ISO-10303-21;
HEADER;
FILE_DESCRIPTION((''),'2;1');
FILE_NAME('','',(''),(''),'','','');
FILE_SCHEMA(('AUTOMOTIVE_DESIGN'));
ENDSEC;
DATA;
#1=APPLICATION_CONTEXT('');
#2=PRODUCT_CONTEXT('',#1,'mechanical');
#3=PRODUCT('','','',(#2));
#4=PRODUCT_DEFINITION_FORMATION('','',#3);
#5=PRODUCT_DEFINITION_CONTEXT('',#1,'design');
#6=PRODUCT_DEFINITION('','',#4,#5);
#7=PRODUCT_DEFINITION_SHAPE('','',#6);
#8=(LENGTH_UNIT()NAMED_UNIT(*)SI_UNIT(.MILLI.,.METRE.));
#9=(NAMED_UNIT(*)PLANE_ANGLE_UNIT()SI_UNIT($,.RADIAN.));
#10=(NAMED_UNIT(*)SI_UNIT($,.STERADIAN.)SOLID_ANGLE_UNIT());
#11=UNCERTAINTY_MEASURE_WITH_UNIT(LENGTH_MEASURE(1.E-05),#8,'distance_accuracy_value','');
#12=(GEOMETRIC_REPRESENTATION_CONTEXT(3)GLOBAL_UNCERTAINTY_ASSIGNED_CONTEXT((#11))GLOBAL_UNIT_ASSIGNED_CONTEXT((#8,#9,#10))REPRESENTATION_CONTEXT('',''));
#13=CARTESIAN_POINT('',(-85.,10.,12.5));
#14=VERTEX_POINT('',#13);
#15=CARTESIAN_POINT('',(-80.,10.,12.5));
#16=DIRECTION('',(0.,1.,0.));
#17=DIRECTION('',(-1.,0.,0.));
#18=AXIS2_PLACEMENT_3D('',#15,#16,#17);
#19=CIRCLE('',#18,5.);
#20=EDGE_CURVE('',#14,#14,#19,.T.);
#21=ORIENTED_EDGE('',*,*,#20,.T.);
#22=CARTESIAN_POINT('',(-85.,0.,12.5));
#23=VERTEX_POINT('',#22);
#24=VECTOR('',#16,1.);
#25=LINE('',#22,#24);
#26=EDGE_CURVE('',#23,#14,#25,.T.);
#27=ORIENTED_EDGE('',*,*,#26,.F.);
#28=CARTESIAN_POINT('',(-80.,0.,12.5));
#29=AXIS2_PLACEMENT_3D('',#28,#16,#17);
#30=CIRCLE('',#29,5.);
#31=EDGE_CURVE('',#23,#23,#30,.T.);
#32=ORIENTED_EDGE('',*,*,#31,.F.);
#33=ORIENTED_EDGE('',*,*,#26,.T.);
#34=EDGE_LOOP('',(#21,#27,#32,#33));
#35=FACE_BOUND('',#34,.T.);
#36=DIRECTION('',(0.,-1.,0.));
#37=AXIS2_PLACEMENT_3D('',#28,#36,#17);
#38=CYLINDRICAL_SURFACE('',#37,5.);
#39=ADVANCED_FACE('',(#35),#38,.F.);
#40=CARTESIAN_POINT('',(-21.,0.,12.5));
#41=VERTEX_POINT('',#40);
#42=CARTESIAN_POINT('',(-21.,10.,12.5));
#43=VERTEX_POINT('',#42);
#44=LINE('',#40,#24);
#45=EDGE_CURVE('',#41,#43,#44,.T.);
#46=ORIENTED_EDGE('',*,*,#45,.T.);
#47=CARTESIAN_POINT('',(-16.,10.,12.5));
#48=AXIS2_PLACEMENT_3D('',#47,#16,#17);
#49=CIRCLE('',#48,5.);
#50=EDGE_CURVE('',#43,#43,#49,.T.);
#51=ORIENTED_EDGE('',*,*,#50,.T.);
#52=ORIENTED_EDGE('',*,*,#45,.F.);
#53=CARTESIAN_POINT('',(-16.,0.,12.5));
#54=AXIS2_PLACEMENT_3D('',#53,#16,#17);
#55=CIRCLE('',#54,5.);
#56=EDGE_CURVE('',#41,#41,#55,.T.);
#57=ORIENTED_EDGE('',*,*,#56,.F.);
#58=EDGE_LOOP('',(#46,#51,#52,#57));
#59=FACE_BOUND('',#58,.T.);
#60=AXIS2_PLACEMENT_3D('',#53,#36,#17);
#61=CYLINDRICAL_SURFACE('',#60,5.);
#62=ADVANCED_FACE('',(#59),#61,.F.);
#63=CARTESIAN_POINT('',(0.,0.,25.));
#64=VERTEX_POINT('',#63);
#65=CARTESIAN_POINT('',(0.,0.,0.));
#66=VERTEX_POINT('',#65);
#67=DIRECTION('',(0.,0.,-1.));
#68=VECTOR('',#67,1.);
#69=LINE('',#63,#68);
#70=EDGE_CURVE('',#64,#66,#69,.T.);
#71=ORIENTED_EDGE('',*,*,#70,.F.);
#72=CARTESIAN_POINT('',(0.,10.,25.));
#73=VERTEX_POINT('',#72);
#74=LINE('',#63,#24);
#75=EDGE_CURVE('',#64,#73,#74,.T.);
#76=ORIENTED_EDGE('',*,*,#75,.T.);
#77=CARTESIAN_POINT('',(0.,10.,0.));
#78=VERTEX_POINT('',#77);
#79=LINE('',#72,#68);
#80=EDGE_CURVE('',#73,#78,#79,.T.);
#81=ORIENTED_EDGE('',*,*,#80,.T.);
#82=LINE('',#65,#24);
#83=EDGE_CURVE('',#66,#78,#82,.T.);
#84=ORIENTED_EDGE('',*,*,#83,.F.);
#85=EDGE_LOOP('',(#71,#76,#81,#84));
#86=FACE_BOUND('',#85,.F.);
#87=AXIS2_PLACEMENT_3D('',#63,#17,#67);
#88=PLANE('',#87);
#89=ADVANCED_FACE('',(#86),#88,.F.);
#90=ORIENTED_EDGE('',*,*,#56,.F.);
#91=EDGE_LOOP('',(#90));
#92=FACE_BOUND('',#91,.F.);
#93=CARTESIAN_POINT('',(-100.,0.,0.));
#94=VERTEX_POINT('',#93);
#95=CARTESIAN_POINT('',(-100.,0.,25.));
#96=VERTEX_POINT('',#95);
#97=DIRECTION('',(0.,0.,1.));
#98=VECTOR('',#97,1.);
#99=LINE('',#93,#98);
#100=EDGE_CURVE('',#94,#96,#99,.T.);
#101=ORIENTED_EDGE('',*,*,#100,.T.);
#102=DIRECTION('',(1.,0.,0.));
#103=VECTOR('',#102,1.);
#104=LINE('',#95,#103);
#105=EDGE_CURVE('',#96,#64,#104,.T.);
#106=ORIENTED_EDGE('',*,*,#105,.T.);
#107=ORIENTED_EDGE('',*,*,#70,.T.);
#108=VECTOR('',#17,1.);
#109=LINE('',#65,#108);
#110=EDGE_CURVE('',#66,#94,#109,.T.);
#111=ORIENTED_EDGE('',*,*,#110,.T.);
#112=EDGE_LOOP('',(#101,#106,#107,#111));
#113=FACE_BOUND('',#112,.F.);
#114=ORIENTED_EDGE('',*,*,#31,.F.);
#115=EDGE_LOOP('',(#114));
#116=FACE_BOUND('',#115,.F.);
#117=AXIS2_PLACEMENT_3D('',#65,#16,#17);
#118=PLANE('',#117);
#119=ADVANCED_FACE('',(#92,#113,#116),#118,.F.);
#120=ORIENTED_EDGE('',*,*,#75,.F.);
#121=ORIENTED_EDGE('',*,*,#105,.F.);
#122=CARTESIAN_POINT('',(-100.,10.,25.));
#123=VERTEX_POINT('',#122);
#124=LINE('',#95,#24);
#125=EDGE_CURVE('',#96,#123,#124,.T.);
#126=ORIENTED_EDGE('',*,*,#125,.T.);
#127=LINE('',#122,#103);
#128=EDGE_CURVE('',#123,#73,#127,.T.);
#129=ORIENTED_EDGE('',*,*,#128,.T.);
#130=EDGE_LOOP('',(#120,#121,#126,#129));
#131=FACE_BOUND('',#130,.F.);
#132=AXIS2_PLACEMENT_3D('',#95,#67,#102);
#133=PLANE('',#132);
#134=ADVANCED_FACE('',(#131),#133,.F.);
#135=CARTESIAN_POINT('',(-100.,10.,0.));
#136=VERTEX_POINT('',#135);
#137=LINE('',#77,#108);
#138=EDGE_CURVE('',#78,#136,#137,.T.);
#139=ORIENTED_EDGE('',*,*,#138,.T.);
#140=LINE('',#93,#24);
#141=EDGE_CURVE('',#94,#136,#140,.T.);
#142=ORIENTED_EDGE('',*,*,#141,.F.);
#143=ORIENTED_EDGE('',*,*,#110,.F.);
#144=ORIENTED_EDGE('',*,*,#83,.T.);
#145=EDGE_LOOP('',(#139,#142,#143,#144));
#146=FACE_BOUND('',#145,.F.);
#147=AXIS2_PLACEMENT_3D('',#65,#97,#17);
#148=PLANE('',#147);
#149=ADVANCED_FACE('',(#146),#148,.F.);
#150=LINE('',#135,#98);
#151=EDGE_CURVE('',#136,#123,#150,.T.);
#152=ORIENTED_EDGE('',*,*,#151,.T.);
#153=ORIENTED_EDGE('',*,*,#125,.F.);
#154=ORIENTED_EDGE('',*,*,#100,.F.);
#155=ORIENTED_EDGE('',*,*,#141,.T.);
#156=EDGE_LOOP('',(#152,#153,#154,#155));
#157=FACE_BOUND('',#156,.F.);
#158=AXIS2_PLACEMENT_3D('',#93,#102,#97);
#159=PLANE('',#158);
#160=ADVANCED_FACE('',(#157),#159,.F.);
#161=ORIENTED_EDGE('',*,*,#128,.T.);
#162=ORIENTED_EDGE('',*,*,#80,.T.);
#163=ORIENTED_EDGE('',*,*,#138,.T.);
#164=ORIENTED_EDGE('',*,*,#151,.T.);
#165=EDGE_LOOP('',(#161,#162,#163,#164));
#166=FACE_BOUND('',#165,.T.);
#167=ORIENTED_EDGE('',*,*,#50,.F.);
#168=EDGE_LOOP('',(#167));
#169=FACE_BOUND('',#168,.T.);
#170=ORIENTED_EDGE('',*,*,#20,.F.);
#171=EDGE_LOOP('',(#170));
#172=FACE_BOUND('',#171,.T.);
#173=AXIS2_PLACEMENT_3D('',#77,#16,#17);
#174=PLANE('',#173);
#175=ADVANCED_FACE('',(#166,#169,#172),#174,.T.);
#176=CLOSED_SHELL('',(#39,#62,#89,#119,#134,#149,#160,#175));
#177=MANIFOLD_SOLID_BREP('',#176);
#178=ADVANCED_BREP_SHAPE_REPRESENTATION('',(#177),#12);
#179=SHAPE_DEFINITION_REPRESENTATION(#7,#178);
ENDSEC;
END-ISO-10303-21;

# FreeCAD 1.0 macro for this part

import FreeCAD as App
import Part
import Sketcher
from FreeCAD import Vector
Q = App.Units.Quantity

doc = App.newDocument("Part")
body = doc.addObject("PartDesign::Body", "Body")

# Sketch on XZ plane
sketch1 = body.newObject("Sketcher::SketchObject", "Sketch")
sketch1.AttachmentSupport = (doc.getObject("XZ_Plane"), [""])
sketch1.MapMode = "FlatFace"
sketch1.addGeometry(Part.LineSegment(Vector(0, 25, 0), Vector(0, 0, 0)), False)
sketch1.addGeometry(Part.LineSegment(Vector(0, 0, 0), Vector(-100, 0, 0)), False)
sketch1.addGeometry(Part.LineSegment(Vector(-100, 0, 0), Vector(-100, 25, 0)), False)
sketch1.addGeometry(Part.LineSegment(Vector(-100, 25, 0), Vector(0, 25, 0)), False)
sketch1.addGeometry(Part.Circle(Vector(-16, 12.5, 0), Vector(0, 0, 1), 5), False)
sketch1.addGeometry(Part.Circle(Vector(-80, 12.5, 0), Vector(0, 0, 1), 5), False)
sketch1.addConstraint(Sketcher.Constraint("Coincident", 0, 2, 1, 1))
sketch1.addConstraint(Sketcher.Constraint("Coincident", 1, 2, 2, 1))
sketch1.addConstraint(Sketcher.Constraint("Coincident", 2, 2, 3, 1))
sketch1.addConstraint(Sketcher.Constraint("Coincident", 3, 2, 0, 1))
sketch1.addConstraint(Sketcher.Constraint("Vertical", 0))
sketch1.addConstraint(Sketcher.Constraint("Horizontal", 1))
sketch1.addConstraint(Sketcher.Constraint("Vertical", 2))
sketch1.addConstraint(Sketcher.Constraint("Horizontal", 3))
sketch1.addConstraint(Sketcher.Constraint("Coincident", 0, 2, -1, 1))
sketch1.addConstraint(Sketcher.Constraint("Equal", 4, 5))
sketch1.addConstraint(Sketcher.Constraint("Horizontal", 4, 3, 5, 3))
sketch1.addConstraint(Sketcher.Constraint("Diameter", 4, Q("10 mm")))
sketch1.addConstraint(Sketcher.Constraint("DistanceX", 1, 2, 1, 1, Q("100 mm")))
sketch1.addConstraint(Sketcher.Constraint("DistanceY", 0, 2, 0, 1, Q("25 mm")))
sketch1.addConstraint(Sketcher.Constraint("DistanceX", 4, 3, -1, 1, Q("16 mm")))
sketch1.addConstraint(Sketcher.Constraint("DistanceX", 5, 3, -1, 1, Q("80 mm")))
sketch1.addConstraint(Sketcher.Constraint("DistanceY", -1, 1, 4, 3, Q("12.5 mm")))
pad1 = body.newObject("PartDesign::Pad", "Pad")
pad1.Profile = sketch1
pad1.Length = 10
pad1.Reversed = True

doc.recompute()
